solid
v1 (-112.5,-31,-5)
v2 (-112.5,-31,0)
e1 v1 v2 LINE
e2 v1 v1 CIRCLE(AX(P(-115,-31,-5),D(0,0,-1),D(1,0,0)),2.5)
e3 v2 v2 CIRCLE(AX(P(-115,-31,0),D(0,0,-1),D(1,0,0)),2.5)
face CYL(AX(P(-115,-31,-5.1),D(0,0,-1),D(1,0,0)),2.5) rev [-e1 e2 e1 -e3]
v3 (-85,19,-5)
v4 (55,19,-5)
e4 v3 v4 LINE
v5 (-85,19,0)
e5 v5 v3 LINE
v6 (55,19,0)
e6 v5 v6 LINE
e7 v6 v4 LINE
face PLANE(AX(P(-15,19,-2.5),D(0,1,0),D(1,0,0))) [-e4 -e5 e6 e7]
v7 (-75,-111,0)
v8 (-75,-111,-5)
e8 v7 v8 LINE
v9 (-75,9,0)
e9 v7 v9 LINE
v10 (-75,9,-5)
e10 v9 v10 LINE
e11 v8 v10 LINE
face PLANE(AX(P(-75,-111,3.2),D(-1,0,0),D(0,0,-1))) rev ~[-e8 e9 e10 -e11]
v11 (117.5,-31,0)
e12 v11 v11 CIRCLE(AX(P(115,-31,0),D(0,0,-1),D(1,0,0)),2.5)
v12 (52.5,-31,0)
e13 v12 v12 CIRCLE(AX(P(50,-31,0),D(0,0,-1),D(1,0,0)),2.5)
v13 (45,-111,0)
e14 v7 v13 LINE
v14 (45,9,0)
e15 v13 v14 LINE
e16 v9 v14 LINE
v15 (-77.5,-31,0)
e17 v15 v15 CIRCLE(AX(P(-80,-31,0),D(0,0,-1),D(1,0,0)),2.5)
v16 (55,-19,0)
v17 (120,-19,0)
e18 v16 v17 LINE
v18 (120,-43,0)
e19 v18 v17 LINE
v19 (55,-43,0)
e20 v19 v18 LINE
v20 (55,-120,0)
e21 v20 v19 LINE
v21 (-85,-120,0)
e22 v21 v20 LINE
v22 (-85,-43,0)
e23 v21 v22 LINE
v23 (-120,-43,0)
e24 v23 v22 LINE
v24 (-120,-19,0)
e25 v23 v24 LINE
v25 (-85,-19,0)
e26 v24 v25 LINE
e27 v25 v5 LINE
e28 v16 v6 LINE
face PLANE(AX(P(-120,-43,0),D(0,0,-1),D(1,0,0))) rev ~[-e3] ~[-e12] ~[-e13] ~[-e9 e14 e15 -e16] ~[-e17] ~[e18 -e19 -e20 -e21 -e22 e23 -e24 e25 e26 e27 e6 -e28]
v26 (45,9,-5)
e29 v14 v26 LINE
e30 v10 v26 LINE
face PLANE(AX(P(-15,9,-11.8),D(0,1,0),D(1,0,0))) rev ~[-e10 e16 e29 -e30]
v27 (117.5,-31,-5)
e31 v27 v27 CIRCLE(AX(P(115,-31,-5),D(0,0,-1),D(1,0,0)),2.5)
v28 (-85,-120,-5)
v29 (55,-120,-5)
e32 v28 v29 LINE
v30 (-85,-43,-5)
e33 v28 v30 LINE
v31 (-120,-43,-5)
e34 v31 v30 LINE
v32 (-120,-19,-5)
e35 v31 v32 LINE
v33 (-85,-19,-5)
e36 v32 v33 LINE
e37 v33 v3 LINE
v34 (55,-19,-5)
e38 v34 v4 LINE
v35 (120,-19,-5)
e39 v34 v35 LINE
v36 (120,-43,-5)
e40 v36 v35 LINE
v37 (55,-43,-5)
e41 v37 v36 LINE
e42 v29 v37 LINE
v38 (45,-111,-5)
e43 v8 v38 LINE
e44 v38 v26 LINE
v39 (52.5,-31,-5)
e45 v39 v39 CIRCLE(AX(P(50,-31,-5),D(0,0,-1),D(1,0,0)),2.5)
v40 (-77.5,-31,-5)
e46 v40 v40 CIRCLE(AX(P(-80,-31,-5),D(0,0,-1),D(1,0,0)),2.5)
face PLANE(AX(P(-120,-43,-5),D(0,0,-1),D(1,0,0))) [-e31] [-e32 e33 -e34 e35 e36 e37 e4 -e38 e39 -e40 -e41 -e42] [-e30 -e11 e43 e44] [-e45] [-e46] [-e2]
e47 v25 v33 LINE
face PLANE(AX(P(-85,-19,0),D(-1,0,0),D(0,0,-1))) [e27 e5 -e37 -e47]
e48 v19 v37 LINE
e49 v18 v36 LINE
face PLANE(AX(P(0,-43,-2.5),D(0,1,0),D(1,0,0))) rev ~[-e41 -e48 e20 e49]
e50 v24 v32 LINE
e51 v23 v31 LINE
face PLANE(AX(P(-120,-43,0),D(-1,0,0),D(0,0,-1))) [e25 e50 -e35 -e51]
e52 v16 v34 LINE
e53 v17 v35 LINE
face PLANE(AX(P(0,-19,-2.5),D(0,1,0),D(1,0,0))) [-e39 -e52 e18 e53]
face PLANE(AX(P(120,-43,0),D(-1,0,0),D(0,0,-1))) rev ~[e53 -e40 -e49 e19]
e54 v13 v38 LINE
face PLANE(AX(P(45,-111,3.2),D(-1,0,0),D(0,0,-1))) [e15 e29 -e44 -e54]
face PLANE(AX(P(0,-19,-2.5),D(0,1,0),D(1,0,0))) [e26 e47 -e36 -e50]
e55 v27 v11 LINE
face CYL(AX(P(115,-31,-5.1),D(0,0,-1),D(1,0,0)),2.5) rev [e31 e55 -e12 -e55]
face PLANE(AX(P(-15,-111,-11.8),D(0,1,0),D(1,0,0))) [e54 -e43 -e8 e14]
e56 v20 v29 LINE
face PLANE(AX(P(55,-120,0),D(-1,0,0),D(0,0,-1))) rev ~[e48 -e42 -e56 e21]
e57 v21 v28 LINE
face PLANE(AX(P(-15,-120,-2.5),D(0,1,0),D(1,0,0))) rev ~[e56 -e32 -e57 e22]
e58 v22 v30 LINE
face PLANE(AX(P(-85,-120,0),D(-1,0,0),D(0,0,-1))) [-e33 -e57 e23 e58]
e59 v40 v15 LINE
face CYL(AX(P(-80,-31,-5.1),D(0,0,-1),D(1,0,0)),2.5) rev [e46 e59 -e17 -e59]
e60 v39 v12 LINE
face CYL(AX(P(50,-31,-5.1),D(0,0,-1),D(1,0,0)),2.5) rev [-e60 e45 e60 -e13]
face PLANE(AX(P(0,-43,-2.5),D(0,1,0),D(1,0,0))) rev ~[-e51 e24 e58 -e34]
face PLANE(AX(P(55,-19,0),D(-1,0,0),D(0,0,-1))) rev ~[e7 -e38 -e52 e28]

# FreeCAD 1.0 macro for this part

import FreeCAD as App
import Part
import Sketcher


def add_polygon(sketch, points):
    """Adds a closed chain of lines whose ends are joined by coincident constraints."""
    first, n = sketch.GeometryCount, len(points)
    for a, b in zip(points, points[1:] + points[:1]):
        sketch.addGeometry(Part.LineSegment(App.Vector(*a, 0), App.Vector(*b, 0)), False)
    for i in range(n):
        sketch.addConstraint(Sketcher.Constraint("Coincident", first + i, 2, first + (i + 1) % n, 1))

doc = App.newDocument("Part")
params = doc.addObject("Spreadsheet::Sheet", "Params")
for row, (alias, value) in enumerate([
    ("sketch1_width", "120 mm"),
    ("sketch1_height", "30 mm"),
    ("pad1_length", "120 mm"),
    ("sketch2_diameter", "5 mm"),
    ("pad2_length", "10 mm"),
    ("sketch3_diameter", "5 mm"),
    ("pad3_length", "10 mm"),
    ("sketch4_diameter", "5 mm"),
    ("pad4_length", "10 mm"),
    ("sketch5_diameter", "5 mm"),
    ("pad5_length", "10 mm"),
    ("sketch6_diameter", "5 mm"),
    ("pad6_length", "10 mm"),
    ("sketch7_diameter", "5 mm"),
    ("pad7_length", "10 mm"),
    ("sketch8_width", "240 mm"),
    ("sketch8_height", "5 mm"),
    ("pad8_length", "24 mm"),
    ("sketch9_width", "140 mm"),
    ("sketch9_height", "5 mm"),
    ("pad9_length", "38 mm"),
    ("sketch10_width", "140 mm"),
    ("sketch10_height", "5 mm"),
    ("pad10_length", "77 mm"),
], start=1):
    params.set(f"A{row}", alias)
    params.set(f"B{row}", "=" + value)
    params.setAlias(f"B{row}", alias)

body = doc.addObject("PartDesign::Body", "Body")

sketch1 = body.newObject("Sketcher::SketchObject", "Sketch")
sketch1.AttachmentSupport = (doc.getObject("XY_Plane"), [""])
sketch1.MapMode = "FlatFace"
sketch1.AttachmentOffset = App.Placement(App.Vector(0, 0, -111), App.Rotation())
add_polygon(sketch1, [(-75, 27), (-75, -3), (45, -3), (45, 27)])
sketch1.addConstraint([
    Sketcher.Constraint("Vertical", 0),
    Sketcher.Constraint("Horizontal", 1),
    Sketcher.Constraint("Vertical", 2),
    Sketcher.Constraint("Horizontal", 3),
    Sketcher.Constraint("DistanceX", 1, 1, 1, 2, 120.0),
    Sketcher.Constraint("DistanceY", 0, 2, 0, 1, 30.0),
    Sketcher.Constraint("DistanceX", 0, 2, -1, 1, 75.0),
    Sketcher.Constraint("DistanceY", 0, 2, -1, 1, 3.2),
])
sketch1.setExpression("Constraints[8]", "Params.sketch1_width")
sketch1.setExpression("Constraints[9]", "Params.sketch1_height")
pad1 = body.newObject("PartDesign::Pad", "Pad")
pad1.Profile = sketch1
pad1.setExpression("Length", "Params.pad1_length")
body2 = doc.addObject("PartDesign::Body", "Body001")

sketch2 = body2.newObject("Sketcher::SketchObject", "Sketch001")
sketch2.AttachmentSupport = (doc.getObject("XZ_Plane001"), [""])
sketch2.MapMode = "FlatFace"
sketch2.addGeometry(Part.Circle(App.Vector(115, -31, 0), App.Vector(0, 0, 1), 2.5), False)
sketch2.addConstraint([
    Sketcher.Constraint("Diameter", 0, 5.0),
    Sketcher.Constraint("DistanceX", -1, 1, 0, 3, 115.0),
    Sketcher.Constraint("DistanceY", 0, 3, -1, 1, 31.0),
])
sketch2.setExpression("Constraints[0]", "Params.sketch2_diameter")
pad2 = body2.newObject("PartDesign::Pad", "Pad001")
pad2.Profile = sketch2
pad2.setExpression("Length", "Params.pad2_length")
body3 = doc.addObject("PartDesign::Body", "Body002")

sketch3 = body3.newObject("Sketcher::SketchObject", "Sketch002")
sketch3.AttachmentSupport = (doc.getObject("XZ_Plane002"), [""])
sketch3.MapMode = "FlatFace"
sketch3.addGeometry(Part.Circle(App.Vector(-80, -31, 0), App.Vector(0, 0, 1), 2.5), False)
sketch3.addConstraint([
    Sketcher.Constraint("Diameter", 0, 5.0),
    Sketcher.Constraint("DistanceX", 0, 3, -1, 1, 80.0),
    Sketcher.Constraint("DistanceY", 0, 3, -1, 1, 31.0),
])
sketch3.setExpression("Constraints[0]", "Params.sketch3_diameter")
pad3 = body3.newObject("PartDesign::Pad", "Pad002")
pad3.Profile = sketch3
pad3.setExpression("Length", "Params.pad3_length")
body4 = doc.addObject("PartDesign::Body", "Body003")

sketch4 = body4.newObject("Sketcher::SketchObject", "Sketch003")
sketch4.AttachmentSupport = (doc.getObject("XZ_Plane003"), [""])
sketch4.MapMode = "FlatFace"
sketch4.addGeometry(Part.Circle(App.Vector(50, -31, 0), App.Vector(0, 0, 1), 2.5), False)
sketch4.addConstraint([
    Sketcher.Constraint("Diameter", 0, 5.0),
    Sketcher.Constraint("DistanceX", -1, 1, 0, 3, 50.0),
    Sketcher.Constraint("DistanceY", 0, 3, -1, 1, 31.0),
])
sketch4.setExpression("Constraints[0]", "Params.sketch4_diameter")
pad4 = body4.newObject("PartDesign::Pad", "Pad003")
pad4.Profile = sketch4
pad4.setExpression("Length", "Params.pad4_length")
body5 = doc.addObject("PartDesign::Body", "Body004")

sketch5 = body5.newObject("Sketcher::SketchObject", "Sketch004")
sketch5.AttachmentSupport = (doc.getObject("XZ_Plane004"), [""])
sketch5.MapMode = "FlatFace"
sketch5.addGeometry(Part.Circle(App.Vector(-45.8, -56.3, 0), App.Vector(0, 0, 1), 2.5), False)
sketch5.addConstraint([
    Sketcher.Constraint("Diameter", 0, 5.0),
    Sketcher.Constraint("DistanceY", 0, 3, -1, 1, 56.3),
    Sketcher.Constraint("DistanceX", 0, 3, -1, 1, 45.75),
])
sketch5.setExpression("Constraints[0]", "Params.sketch5_diameter")
pad5 = body5.newObject("PartDesign::Pad", "Pad004")
pad5.Profile = sketch5
pad5.setExpression("Length", "Params.pad5_length")
body6 = doc.addObject("PartDesign::Body", "Body005")

sketch6 = body6.newObject("Sketcher::SketchObject", "Sketch005")
sketch6.AttachmentSupport = (doc.getObject("XZ_Plane005"), [""])
sketch6.MapMode = "FlatFace"
sketch6.addGeometry(Part.Circle(App.Vector(-115, -31, 0), App.Vector(0, 0, 1), 2.5), False)
sketch6.addConstraint([
    Sketcher.Constraint("Diameter", 0, 5.0),
    Sketcher.Constraint("DistanceX", 0, 3, -1, 1, 115.0),
    Sketcher.Constraint("DistanceY", 0, 3, -1, 1, 31.0),
])
sketch6.setExpression("Constraints[0]", "Params.sketch6_diameter")
pad6 = body6.newObject("PartDesign::Pad", "Pad005")
pad6.Profile = sketch6
pad6.setExpression("Length", "Params.pad6_length")
body7 = doc.addObject("PartDesign::Body", "Body006")
body7.AllowCompound = True

sketch7 = body7.newObject("Sketcher::SketchObject", "Sketch006")
sketch7.AttachmentSupport = (doc.getObject("XZ_Plane006"), [""])
sketch7.MapMode = "FlatFace"
sketch7.addGeometry(Part.Circle(App.Vector(-45.8, -1.3, 0), App.Vector(0, 0, 1), 2.5), False)
sketch7.addConstraint([
    Sketcher.Constraint("Diameter", 0, 5.0),
    Sketcher.Constraint("DistanceY", 0, 3, -1, 1, 1.3),
    Sketcher.Constraint("DistanceX", 0, 3, -1, 1, 45.75),
])
sketch7.setExpression("Constraints[0]", "Params.sketch7_diameter")
pad7 = body7.newObject("PartDesign::Pad", "Pad006")
pad7.Profile = sketch7
pad7.setExpression("Length", "Params.pad7_length")
doc.recompute()

boolean = body7.newObject("PartDesign::Boolean", "Boolean")
boolean.Type = "Fuse"
boolean.addObjects([body2])
doc.recompute()

boolean2 = body7.newObject("PartDesign::Boolean", "Boolean001")
boolean2.Type = "Fuse"
boolean2.addObjects([body3])
doc.recompute()

boolean3 = body7.newObject("PartDesign::Boolean", "Boolean002")
boolean3.Type = "Fuse"
boolean3.addObjects([body4])
doc.recompute()

boolean4 = body7.newObject("PartDesign::Boolean", "Boolean003")
boolean4.Type = "Fuse"
boolean4.addObjects([body5])
doc.recompute()

boolean5 = body7.newObject("PartDesign::Boolean", "Boolean004")
boolean5.Type = "Fuse"
boolean5.addObjects([body6])
body8 = doc.addObject("PartDesign::Body", "Body007")
body8.AllowCompound = True
doc.recompute()

body7.Placement = App.Placement(App.Vector(0, 5.1, 0), App.Rotation(App.Vector(0, 0, 1), 0))
boolean6 = body8.newObject("PartDesign::Boolean", "Boolean005")
boolean6.Type = "Fuse"
boolean6.addObjects([body7])
body9 = doc.addObject("PartDesign::Body", "Body008")

sketch8 = body9.newObject("Sketcher::SketchObject", "Sketch007")
sketch8.AttachmentSupport = (doc.getObject("XY_Plane008"), [""])
sketch8.MapMode = "FlatFace"
sketch8.AttachmentOffset = App.Placement(App.Vector(0, 0, -43), App.Rotation())
add_polygon(sketch8, [(-120, 5), (-120, 0), (120, 0), (120, 5)])
sketch8.addConstraint([
    Sketcher.Constraint("Vertical", 0),
    Sketcher.Constraint("Horizontal", 1),
    Sketcher.Constraint("Vertical", 2),
    Sketcher.Constraint("Horizontal", 3),
    Sketcher.Constraint("Symmetric", 0, 2, 1, 2, -1, 1),
    Sketcher.Constraint("DistanceX", 1, 1, 1, 2, 240.0),
    Sketcher.Constraint("DistanceY", 0, 2, 0, 1, 5.0),
])
sketch8.setExpression("Constraints[9]", "Params.sketch8_width")
sketch8.setExpression("Constraints[10]", "Params.sketch8_height")
pad8 = body9.newObject("PartDesign::Pad", "Pad007")
pad8.Profile = sketch8
pad8.setExpression("Length", "Params.pad8_length")
body10 = doc.addObject("PartDesign::Body", "Body009")

sketch9 = body10.newObject("Sketcher::SketchObject", "Sketch008")
sketch9.AttachmentSupport = (doc.getObject("XY_Plane009"), [""])
sketch9.MapMode = "FlatFace"
sketch9.AttachmentOffset = App.Placement(App.Vector(0, 0, -19), App.Rotation())
add_polygon(sketch9, [(-85, 5), (-85, 0), (55, 0), (55, 5)])
sketch9.addConstraint([
    Sketcher.Constraint("Vertical", 0),
    Sketcher.Constraint("Horizontal", 1),
    Sketcher.Constraint("Vertical", 2),
    Sketcher.Constraint("Horizontal", 3),
    Sketcher.Constraint("PointOnObject", 0, 2, -1),
    Sketcher.Constraint("DistanceX", 1, 1, 1, 2, 140.0),
    Sketcher.Constraint("DistanceY", 0, 2, 0, 1, 5.0),
    Sketcher.Constraint("DistanceX", 0, 2, -1, 1, 85.0),
])
sketch9.setExpression("Constraints[9]", "Params.sketch9_width")
sketch9.setExpression("Constraints[10]", "Params.sketch9_height")
pad9 = body10.newObject("PartDesign::Pad", "Pad008")
pad9.Profile = sketch9
pad9.setExpression("Length", "Params.pad9_length")
body11 = doc.addObject("PartDesign::Body", "Body010")

sketch10 = body11.newObject("Sketcher::SketchObject", "Sketch009")
sketch10.AttachmentSupport = (doc.getObject("XY_Plane010"), [""])
sketch10.MapMode = "FlatFace"
sketch10.AttachmentOffset = App.Placement(App.Vector(0, 0, -120), App.Rotation())
add_polygon(sketch10, [(-85, 5), (-85, 0), (55, 0), (55, 5)])
sketch10.addConstraint([
    Sketcher.Constraint("Vertical", 0),
    Sketcher.Constraint("Horizontal", 1),
    Sketcher.Constraint("Vertical", 2),
    Sketcher.Constraint("Horizontal", 3),
    Sketcher.Constraint("PointOnObject", 0, 2, -1),
    Sketcher.Constraint("DistanceX", 1, 1, 1, 2, 140.0),
    Sketcher.Constraint("DistanceY", 0, 2, 0, 1, 5.0),
    Sketcher.Constraint("DistanceX", 0, 2, -1, 1, 85.0),
])
sketch10.setExpression("Constraints[9]", "Params.sketch10_width")
sketch10.setExpression("Constraints[10]", "Params.sketch10_height")
pad10 = body11.newObject("PartDesign::Pad", "Pad009")
pad10.Profile = sketch10
pad10.setExpression("Length", "Params.pad10_length")
doc.recompute()

boolean7 = body11.newObject("PartDesign::Boolean", "Boolean006")
boolean7.Type = "Fuse"
boolean7.addObjects([body9])
doc.recompute()

boolean8 = body11.newObject("PartDesign::Boolean", "Boolean007")
boolean8.Type = "Fuse"
boolean8.addObjects([body10])
doc.recompute()

boolean9 = body11.newObject("PartDesign::Boolean", "Boolean008")
boolean9.Type = "Cut"
boolean9.addObjects([body8])
doc.recompute()

boolean10 = body11.newObject("PartDesign::Boolean", "Boolean009")
boolean10.Type = "Cut"
boolean10.addObjects([body])
body12 = doc.addObject("PartDesign::Body", "Body011")
doc.recompute()

body11.Placement = App.Placement(App.Vector(0, 0, 0), App.Rotation(App.Vector(1, 0, 0), 270))
boolean11 = body12.newObject("PartDesign::Boolean", "Boolean010")
boolean11.Type = "Fuse"
boolean11.addObjects([body11])

doc.recompute()
